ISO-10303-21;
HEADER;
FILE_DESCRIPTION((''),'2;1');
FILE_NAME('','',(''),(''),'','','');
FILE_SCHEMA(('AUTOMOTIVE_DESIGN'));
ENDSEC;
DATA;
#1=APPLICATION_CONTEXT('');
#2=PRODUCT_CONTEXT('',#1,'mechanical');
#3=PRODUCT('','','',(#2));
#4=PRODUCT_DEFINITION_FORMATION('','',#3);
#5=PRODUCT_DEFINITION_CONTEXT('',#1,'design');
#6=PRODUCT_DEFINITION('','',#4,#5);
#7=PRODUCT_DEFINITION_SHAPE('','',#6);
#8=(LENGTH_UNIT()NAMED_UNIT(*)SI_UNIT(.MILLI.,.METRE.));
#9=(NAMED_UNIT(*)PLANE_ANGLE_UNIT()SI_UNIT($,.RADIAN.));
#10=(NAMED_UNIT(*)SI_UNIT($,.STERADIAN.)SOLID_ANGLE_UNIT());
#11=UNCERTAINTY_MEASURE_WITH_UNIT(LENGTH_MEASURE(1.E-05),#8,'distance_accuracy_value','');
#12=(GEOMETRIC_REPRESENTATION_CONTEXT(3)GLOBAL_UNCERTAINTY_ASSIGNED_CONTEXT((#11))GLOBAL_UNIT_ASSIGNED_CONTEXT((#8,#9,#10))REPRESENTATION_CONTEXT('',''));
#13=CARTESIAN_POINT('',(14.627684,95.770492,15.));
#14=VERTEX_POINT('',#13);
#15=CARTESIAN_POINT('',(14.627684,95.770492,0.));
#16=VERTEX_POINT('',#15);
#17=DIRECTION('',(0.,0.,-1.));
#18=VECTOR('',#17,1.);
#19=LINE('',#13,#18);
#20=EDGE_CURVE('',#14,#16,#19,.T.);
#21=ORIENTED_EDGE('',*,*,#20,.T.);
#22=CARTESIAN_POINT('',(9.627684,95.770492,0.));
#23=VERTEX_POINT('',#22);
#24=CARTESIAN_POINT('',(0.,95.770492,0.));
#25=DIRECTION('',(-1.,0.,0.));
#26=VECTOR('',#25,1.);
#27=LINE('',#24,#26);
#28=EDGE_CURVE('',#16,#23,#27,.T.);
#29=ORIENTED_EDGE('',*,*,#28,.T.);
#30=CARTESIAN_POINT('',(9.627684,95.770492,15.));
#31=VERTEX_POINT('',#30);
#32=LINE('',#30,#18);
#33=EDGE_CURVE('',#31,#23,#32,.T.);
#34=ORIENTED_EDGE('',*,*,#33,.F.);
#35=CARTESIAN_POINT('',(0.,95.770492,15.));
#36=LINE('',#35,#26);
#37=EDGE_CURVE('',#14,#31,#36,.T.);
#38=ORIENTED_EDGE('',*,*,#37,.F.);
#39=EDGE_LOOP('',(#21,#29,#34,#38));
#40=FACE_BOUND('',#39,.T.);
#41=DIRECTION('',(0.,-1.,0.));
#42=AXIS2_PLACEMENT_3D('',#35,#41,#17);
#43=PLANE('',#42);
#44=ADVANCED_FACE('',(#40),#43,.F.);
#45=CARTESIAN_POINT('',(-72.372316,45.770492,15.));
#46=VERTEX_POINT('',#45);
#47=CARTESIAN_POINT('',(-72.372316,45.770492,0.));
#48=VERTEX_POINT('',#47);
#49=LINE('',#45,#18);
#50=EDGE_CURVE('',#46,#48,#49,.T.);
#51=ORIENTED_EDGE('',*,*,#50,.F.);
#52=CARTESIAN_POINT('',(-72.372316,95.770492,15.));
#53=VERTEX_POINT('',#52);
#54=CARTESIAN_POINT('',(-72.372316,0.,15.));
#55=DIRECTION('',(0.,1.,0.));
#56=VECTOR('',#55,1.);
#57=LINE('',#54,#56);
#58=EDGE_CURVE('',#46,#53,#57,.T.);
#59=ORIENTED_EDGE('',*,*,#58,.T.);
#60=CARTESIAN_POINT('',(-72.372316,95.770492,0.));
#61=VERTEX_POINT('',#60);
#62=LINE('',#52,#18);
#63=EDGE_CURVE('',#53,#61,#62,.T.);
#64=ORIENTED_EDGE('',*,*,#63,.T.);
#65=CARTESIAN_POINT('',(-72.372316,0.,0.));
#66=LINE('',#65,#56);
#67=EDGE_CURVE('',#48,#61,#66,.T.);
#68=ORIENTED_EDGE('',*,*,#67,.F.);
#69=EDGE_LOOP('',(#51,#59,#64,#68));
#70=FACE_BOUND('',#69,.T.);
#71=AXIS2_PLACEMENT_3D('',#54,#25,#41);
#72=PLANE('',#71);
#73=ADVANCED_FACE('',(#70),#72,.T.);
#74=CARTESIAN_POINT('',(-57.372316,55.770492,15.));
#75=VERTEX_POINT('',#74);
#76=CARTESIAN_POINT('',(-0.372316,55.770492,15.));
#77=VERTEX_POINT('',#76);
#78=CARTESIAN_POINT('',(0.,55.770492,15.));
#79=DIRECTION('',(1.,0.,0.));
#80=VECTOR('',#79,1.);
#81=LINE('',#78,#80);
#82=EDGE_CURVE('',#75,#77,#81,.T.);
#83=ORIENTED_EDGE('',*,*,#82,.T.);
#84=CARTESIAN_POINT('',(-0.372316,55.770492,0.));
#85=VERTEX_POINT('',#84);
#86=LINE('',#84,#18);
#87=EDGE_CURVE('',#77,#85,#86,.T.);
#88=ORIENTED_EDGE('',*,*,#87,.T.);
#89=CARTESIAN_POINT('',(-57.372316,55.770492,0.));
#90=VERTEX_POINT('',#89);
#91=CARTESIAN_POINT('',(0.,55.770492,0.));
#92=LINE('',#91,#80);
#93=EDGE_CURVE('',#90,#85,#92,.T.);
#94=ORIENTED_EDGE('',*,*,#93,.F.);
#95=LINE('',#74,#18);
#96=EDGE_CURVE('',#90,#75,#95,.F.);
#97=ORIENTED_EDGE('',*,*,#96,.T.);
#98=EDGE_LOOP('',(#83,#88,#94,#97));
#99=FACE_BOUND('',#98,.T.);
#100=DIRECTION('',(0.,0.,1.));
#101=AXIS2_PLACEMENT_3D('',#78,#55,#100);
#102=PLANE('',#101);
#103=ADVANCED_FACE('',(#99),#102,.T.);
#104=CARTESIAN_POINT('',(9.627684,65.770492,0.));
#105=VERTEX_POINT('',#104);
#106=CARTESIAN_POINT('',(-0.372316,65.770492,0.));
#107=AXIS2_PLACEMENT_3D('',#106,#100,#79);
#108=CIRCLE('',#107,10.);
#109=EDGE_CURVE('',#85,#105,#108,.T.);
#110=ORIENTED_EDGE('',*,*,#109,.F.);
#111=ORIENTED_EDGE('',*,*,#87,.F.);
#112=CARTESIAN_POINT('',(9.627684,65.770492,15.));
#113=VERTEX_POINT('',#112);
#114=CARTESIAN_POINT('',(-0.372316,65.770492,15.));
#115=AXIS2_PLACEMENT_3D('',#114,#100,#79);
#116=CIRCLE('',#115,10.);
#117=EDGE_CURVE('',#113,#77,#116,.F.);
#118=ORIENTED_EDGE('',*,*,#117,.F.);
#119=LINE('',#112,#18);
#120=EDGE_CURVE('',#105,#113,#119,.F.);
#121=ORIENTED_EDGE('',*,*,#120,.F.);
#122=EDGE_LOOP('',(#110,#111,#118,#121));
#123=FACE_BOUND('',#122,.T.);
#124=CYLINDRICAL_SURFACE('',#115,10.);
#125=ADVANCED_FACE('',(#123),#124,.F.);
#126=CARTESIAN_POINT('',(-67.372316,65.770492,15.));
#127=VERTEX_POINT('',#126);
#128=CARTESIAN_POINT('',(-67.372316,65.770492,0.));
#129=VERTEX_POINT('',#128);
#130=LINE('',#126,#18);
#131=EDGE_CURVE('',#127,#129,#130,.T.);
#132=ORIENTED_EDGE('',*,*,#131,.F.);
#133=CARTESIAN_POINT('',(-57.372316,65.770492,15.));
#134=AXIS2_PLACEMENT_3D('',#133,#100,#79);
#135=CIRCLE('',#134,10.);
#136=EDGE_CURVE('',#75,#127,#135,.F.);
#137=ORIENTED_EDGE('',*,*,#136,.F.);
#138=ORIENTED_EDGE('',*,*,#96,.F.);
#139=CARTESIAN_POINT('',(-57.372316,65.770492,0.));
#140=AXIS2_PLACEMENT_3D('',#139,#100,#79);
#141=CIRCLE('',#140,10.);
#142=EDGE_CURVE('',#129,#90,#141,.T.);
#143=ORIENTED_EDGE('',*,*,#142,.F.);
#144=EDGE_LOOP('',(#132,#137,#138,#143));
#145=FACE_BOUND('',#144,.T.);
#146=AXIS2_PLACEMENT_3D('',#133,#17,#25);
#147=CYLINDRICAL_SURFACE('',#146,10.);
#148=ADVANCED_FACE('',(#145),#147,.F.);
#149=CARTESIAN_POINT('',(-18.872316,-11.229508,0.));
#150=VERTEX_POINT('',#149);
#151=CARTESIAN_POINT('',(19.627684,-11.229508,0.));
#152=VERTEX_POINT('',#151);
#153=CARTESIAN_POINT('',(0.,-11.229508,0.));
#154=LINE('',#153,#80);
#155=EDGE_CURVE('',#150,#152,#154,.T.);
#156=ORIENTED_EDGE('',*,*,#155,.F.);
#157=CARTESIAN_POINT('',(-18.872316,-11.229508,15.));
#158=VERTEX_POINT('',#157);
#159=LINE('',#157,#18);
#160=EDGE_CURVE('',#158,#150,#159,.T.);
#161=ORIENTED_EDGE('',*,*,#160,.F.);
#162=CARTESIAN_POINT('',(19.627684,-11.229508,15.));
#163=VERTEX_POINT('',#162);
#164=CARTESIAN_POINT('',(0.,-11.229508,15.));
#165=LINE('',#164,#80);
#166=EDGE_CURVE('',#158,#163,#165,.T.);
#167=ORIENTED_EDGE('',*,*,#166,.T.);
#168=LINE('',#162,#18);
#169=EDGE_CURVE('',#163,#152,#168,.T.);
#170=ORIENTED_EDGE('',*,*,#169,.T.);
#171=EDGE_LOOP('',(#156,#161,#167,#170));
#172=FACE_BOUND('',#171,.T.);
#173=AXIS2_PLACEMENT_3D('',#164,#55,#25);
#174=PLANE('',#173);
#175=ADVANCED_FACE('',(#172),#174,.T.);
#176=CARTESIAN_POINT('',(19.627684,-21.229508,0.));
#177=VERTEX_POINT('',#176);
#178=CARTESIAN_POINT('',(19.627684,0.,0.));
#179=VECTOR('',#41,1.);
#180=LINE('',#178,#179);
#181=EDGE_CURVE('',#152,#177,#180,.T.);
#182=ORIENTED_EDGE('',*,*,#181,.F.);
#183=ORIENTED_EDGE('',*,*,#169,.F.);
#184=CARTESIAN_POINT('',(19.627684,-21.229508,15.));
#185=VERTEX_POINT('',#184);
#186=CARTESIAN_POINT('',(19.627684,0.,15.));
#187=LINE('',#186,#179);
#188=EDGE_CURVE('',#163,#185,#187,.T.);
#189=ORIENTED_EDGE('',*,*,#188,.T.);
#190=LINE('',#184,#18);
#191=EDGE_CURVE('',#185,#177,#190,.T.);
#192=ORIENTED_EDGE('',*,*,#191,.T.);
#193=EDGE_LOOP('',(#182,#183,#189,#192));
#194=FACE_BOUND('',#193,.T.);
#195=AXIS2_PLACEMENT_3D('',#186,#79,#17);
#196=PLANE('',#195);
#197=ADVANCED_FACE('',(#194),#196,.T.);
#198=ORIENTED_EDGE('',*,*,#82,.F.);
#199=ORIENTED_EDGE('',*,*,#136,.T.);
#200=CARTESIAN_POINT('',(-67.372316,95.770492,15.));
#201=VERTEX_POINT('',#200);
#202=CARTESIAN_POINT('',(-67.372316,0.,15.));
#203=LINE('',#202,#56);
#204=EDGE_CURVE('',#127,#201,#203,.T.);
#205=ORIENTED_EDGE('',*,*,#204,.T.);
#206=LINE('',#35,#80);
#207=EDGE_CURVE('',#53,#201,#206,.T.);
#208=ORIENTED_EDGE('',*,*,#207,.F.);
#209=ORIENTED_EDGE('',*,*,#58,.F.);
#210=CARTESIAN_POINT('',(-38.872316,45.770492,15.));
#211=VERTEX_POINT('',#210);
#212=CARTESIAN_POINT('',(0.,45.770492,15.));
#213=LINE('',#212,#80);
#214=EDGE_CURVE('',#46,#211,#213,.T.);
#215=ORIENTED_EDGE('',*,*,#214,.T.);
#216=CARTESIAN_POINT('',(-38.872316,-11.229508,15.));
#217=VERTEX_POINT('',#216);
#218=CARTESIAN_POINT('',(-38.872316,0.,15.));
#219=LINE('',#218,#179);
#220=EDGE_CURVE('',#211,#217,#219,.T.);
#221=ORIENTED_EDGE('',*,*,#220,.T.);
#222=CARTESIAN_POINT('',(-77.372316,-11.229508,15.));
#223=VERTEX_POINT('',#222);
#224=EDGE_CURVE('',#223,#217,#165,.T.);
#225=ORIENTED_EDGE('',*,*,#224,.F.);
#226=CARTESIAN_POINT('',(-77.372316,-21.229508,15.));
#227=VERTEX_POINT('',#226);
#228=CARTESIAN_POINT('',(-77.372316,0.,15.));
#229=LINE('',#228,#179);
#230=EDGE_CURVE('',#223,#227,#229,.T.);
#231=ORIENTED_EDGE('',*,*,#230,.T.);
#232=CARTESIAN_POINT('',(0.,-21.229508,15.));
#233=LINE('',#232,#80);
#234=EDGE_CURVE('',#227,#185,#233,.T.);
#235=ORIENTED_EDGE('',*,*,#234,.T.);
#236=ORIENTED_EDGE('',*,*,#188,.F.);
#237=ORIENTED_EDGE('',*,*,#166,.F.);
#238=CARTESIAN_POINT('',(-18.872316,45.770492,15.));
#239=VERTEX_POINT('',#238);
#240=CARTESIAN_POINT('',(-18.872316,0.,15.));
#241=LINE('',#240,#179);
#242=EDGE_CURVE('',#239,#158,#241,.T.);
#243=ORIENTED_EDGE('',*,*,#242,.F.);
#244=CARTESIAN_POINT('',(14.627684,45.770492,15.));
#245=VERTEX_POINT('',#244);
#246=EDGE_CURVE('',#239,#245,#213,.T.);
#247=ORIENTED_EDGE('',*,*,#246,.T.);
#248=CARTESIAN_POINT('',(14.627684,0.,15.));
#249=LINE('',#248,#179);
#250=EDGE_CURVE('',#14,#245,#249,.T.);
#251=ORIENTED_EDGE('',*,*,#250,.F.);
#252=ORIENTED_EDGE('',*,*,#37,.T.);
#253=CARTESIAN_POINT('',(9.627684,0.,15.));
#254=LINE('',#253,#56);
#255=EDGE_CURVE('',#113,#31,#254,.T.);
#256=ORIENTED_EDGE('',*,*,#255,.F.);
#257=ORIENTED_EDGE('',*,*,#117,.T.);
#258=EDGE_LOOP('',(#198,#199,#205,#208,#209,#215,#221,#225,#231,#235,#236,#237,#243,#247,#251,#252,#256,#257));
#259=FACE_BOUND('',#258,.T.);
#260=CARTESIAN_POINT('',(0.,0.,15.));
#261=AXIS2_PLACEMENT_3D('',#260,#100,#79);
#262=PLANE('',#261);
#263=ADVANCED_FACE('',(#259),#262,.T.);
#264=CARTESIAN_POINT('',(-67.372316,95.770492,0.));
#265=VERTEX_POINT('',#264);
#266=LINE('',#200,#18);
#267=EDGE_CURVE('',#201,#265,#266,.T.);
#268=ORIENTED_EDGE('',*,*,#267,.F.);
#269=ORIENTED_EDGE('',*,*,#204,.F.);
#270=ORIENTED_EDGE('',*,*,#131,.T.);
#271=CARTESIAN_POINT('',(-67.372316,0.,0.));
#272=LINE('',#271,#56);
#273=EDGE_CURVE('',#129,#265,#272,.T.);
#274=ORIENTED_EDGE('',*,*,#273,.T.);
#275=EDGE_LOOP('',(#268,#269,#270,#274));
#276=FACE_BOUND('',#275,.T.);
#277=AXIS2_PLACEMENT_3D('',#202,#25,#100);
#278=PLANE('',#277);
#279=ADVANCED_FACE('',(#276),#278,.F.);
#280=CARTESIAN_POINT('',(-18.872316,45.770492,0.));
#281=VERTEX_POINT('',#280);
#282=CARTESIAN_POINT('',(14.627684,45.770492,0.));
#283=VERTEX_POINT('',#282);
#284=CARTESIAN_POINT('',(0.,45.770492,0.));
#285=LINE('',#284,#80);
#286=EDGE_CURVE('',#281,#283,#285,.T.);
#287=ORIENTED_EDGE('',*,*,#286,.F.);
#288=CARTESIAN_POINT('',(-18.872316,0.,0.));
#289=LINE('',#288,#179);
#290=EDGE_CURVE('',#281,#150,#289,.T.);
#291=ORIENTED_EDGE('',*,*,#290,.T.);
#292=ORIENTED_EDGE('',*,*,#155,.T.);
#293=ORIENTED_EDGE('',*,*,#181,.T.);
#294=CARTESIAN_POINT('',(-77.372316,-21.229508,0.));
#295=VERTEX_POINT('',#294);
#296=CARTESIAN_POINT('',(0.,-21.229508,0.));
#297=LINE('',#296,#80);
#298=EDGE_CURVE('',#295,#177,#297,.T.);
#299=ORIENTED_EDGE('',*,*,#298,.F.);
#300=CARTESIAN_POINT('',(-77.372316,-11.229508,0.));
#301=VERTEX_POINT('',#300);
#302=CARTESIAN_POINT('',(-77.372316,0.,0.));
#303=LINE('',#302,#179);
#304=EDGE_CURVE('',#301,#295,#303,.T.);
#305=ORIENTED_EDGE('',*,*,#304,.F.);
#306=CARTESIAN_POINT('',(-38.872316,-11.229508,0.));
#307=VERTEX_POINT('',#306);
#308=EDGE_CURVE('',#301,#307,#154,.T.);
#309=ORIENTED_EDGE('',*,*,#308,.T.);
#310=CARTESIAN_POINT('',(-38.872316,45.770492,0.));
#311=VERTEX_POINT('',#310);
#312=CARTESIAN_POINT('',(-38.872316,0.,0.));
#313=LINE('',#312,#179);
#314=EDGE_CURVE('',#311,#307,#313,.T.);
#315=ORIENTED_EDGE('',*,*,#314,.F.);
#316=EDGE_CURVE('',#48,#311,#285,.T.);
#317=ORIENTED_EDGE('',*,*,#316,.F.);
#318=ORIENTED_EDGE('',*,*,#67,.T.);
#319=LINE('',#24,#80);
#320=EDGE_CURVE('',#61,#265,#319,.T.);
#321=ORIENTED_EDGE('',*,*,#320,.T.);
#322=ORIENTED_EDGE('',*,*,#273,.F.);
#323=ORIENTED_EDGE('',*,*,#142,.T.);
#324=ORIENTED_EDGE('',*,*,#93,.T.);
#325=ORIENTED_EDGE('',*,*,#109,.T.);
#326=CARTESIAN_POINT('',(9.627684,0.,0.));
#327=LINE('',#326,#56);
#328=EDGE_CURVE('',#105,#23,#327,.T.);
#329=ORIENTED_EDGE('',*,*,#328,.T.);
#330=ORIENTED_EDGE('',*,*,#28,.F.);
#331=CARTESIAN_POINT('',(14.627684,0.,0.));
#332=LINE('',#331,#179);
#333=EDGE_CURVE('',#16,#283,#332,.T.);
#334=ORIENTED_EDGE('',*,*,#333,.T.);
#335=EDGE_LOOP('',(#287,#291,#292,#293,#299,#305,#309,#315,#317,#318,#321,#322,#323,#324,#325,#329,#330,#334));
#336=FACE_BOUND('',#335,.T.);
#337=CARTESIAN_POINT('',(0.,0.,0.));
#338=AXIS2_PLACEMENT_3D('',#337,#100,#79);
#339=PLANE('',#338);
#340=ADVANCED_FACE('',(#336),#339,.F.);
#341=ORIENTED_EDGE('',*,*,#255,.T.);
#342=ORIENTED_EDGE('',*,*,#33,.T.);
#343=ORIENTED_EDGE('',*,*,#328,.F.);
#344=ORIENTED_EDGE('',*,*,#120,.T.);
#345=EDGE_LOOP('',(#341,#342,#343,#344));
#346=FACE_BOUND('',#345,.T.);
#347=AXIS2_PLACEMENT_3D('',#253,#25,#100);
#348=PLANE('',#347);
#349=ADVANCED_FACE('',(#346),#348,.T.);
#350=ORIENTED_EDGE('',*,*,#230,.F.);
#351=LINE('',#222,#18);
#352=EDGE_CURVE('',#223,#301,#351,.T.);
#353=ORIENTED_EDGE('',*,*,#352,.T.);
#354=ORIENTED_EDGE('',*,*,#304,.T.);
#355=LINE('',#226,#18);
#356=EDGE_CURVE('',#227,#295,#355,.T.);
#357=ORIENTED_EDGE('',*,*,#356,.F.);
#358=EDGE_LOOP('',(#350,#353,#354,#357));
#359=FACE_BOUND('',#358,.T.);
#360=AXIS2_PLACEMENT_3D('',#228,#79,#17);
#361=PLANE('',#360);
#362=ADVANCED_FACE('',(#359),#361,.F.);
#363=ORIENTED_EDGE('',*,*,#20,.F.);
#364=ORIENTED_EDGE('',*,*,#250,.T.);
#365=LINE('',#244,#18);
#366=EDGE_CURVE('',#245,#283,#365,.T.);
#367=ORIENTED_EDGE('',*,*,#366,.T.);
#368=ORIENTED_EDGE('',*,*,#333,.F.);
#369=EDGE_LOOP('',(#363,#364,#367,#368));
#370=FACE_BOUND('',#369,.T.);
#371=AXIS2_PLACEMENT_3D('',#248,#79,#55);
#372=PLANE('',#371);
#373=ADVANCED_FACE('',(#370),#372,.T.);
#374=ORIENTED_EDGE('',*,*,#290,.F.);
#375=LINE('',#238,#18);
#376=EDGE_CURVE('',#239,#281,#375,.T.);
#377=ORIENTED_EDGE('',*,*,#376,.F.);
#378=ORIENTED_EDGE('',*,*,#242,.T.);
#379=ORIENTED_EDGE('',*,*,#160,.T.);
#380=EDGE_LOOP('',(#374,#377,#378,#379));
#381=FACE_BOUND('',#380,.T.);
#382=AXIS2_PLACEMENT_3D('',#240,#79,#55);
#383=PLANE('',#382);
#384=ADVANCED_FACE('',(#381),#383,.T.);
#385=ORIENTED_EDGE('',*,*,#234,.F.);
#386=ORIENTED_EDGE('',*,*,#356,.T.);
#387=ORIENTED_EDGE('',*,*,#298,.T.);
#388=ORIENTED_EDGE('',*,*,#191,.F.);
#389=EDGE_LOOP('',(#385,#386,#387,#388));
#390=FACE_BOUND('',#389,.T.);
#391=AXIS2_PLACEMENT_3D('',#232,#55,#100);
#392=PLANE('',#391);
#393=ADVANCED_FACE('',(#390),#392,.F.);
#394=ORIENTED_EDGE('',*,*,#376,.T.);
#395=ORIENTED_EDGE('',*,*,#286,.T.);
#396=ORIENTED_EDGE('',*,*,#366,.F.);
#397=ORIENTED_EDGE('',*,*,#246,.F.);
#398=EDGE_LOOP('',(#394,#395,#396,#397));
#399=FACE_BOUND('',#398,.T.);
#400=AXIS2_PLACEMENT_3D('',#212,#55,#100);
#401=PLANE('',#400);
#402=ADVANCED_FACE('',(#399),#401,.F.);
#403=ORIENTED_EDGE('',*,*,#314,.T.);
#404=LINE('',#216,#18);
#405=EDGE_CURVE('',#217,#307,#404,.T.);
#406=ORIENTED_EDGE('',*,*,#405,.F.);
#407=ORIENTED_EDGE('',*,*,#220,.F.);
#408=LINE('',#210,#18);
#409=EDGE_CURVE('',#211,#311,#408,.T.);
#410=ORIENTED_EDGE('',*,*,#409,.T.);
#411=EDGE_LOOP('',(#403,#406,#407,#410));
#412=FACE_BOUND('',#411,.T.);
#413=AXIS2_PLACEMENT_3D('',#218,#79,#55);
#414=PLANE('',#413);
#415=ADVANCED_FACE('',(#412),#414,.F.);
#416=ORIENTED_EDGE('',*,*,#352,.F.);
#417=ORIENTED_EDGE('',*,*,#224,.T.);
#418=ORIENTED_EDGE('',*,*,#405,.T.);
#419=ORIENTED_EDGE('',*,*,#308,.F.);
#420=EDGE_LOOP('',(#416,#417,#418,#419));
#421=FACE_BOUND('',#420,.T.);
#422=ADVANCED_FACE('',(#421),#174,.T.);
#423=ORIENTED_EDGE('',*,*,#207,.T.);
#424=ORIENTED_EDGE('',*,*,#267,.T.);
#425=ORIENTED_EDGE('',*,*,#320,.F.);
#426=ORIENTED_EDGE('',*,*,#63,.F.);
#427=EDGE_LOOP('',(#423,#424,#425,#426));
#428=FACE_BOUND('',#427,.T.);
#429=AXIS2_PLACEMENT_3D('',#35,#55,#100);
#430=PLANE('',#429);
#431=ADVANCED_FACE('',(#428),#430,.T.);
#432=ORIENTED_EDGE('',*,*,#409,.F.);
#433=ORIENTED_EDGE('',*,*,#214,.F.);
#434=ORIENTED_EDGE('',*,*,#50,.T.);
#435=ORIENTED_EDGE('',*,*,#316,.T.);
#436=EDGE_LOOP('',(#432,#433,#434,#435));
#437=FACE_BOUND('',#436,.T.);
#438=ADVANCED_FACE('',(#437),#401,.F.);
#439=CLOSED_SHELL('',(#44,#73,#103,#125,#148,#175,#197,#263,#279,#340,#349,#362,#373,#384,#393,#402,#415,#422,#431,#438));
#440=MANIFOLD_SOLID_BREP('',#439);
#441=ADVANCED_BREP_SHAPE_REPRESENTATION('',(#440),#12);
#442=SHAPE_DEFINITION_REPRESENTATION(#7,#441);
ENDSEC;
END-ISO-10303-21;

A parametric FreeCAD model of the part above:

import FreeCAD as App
import Part
import Sketcher


def edges_at(feature, points):
    """Names of the edges that pass closest to the given points."""
    edges = feature.Shape.Edges
    near = lambda p: min(range(len(edges)), key=lambda i: edges[i].distToShape(Part.Vertex(*p))[0])
    return sorted({f"Edge{near(p) + 1}" for p in points})

doc = App.newDocument("Part")
params = doc.addObject("Spreadsheet::Sheet", "Params")
for row, (alias, value) in enumerate([
    ("sketch1_width", "97 mm"),
    ("sketch1_width2", "5 mm"),
    ("sketch1_width3", "77 mm"),
    ("sketch1_height", "50 mm"),
    ("sketch1_height2", "57 mm"),
    ("pad1_length", "15 mm"),
    ("fillet_radius", "10 mm"),
], start=1):
    params.set(f"A{row}", alias)
    params.set(f"B{row}", "=" + value)
    params.setAlias(f"B{row}", alias)

body = doc.addObject("PartDesign::Body", "Body")

# Sketch on XY plane
sketch1 = body.newObject("Sketcher::SketchObject", "Sketch")
sketch1.AttachmentSupport = (doc.getObject("XY_Plane"), [""])
sketch1.MapMode = "FlatFace"
sketch1.addGeometry([
    Part.LineSegment(App.Vector(-72, 96, 0), App.Vector(-72, 46, 0)),  # 0
    Part.LineSegment(App.Vector(-72, 46, 0), App.Vector(-39, 46, 0)),  # 1
    Part.LineSegment(App.Vector(-39, 46, 0), App.Vector(-39, -11, 0)),  # 2
    Part.LineSegment(App.Vector(-39, -11, 0), App.Vector(-77, -11, 0)),  # 3
    Part.LineSegment(App.Vector(-77, -11, 0), App.Vector(-77, -21, 0)),  # 4
    Part.LineSegment(App.Vector(-77, -21, 0), App.Vector(20, -21, 0)),  # 5
    Part.LineSegment(App.Vector(20, -21, 0), App.Vector(20, -11, 0)),  # 6
    Part.LineSegment(App.Vector(20, -11, 0), App.Vector(-19, -11, 0)),  # 7
    Part.LineSegment(App.Vector(-19, -11, 0), App.Vector(-19, 46, 0)),  # 8
    Part.LineSegment(App.Vector(-19, 46, 0), App.Vector(15, 46, 0)),  # 9
    Part.LineSegment(App.Vector(15, 46, 0), App.Vector(15, 96, 0)),  # 10
    Part.LineSegment(App.Vector(15, 96, 0), App.Vector(10, 96, 0)),  # 11
    Part.LineSegment(App.Vector(10, 96, 0), App.Vector(10, 56, 0)),  # 12
    Part.LineSegment(App.Vector(10, 56, 0), App.Vector(-67, 56, 0)),  # 13
    Part.LineSegment(App.Vector(-67, 56, 0), App.Vector(-67, 96, 0)),  # 14
    Part.LineSegment(App.Vector(-67, 96, 0), App.Vector(-72, 96, 0)),  # 15
], False)
sketch1.addConstraint([
    Sketcher.Constraint("Coincident", 0, 2, 1, 1),
    Sketcher.Constraint("Coincident", 1, 2, 2, 1),
    Sketcher.Constraint("Coincident", 2, 2, 3, 1),
    Sketcher.Constraint("Coincident", 3, 2, 4, 1),
    Sketcher.Constraint("Coincident", 4, 2, 5, 1),
    Sketcher.Constraint("Coincident", 5, 2, 6, 1),
    Sketcher.Constraint("Coincident", 6, 2, 7, 1),
    Sketcher.Constraint("Coincident", 7, 2, 8, 1),
    Sketcher.Constraint("Coincident", 8, 2, 9, 1),
    Sketcher.Constraint("Coincident", 9, 2, 10, 1),
    Sketcher.Constraint("Coincident", 10, 2, 11, 1),
    Sketcher.Constraint("Coincident", 11, 2, 12, 1),
    Sketcher.Constraint("Coincident", 12, 2, 13, 1),
    Sketcher.Constraint("Coincident", 13, 2, 14, 1),
    Sketcher.Constraint("Coincident", 14, 2, 15, 1),
    Sketcher.Constraint("Coincident", 15, 2, 0, 1),
    Sketcher.Constraint("Vertical", 0),
    Sketcher.Constraint("Horizontal", 1),
    Sketcher.Constraint("Vertical", 2),
    Sketcher.Constraint("Horizontal", 3),
    Sketcher.Constraint("Vertical", 4),
    Sketcher.Constraint("Horizontal", 5),
    Sketcher.Constraint("Vertical", 6),
    Sketcher.Constraint("Horizontal", 7),
    Sketcher.Constraint("Vertical", 8),
    Sketcher.Constraint("Horizontal", 9),
    Sketcher.Constraint("Vertical", 10),
    Sketcher.Constraint("Horizontal", 11),
    Sketcher.Constraint("Vertical", 12),
    Sketcher.Constraint("Horizontal", 13),
    Sketcher.Constraint("Vertical", 14),
    Sketcher.Constraint("Horizontal", 15),
    Sketcher.Constraint("Horizontal", 3, 2, 6, 2),
    Sketcher.Constraint("Horizontal", 1, 2, 8, 2),
    Sketcher.Constraint("Horizontal", 11, 2, 14, 2),
    Sketcher.Constraint("Equal", 3, 7),
    Sketcher.Constraint("Equal", 1, 9),
    Sketcher.Constraint("Equal", 11, 15),
    Sketcher.Constraint("DistanceX", 5, 1, 5, 2, 97.0),
    Sketcher.Constraint("DistanceX", 11, 2, 11, 1, 5.0),
    Sketcher.Constraint("DistanceX", 13, 2, 13, 1, 77.0),
    Sketcher.Constraint("DistanceY", 0, 2, 0, 1, 50.0),
    Sketcher.Constraint("DistanceY", 2, 2, 2, 1, 57.0),
    Sketcher.Constraint("DistanceY", 4, 2, 4, 1, 10.0),
    Sketcher.Constraint("DistanceY", 12, 2, 12, 1, 40.0),
    Sketcher.Constraint("DistanceX", 1, 1, 1, 2, 33.5),
    Sketcher.Constraint("DistanceY", -1, 1, 0, 2, 45.770492),
    Sketcher.Constraint("DistanceX", 0, 2, -1, 1, 72.372316),
])
sketch1.setExpression("Constraints[38]", "Params.sketch1_width")
sketch1.setExpression("Constraints[39]", "Params.sketch1_width2")
sketch1.setExpression("Constraints[40]", "Params.sketch1_width3")
sketch1.setExpression("Constraints[41]", "Params.sketch1_height")
sketch1.setExpression("Constraints[42]", "Params.sketch1_height2")
pad1 = body.newObject("PartDesign::Pad", "Pad")
pad1.Profile = sketch1
pad1.setExpression("Length", "Params.pad1_length")
doc.recompute()

fillet = body.newObject("PartDesign::Fillet", "Fillet")
fillet.Base = (pad1, edges_at(pad1, [(-67.372, 55.77, 7.5), (9.628, 55.77, 7.5)]))
fillet.setExpression("Radius", "Params.fillet_radius")

doc.recompute()
